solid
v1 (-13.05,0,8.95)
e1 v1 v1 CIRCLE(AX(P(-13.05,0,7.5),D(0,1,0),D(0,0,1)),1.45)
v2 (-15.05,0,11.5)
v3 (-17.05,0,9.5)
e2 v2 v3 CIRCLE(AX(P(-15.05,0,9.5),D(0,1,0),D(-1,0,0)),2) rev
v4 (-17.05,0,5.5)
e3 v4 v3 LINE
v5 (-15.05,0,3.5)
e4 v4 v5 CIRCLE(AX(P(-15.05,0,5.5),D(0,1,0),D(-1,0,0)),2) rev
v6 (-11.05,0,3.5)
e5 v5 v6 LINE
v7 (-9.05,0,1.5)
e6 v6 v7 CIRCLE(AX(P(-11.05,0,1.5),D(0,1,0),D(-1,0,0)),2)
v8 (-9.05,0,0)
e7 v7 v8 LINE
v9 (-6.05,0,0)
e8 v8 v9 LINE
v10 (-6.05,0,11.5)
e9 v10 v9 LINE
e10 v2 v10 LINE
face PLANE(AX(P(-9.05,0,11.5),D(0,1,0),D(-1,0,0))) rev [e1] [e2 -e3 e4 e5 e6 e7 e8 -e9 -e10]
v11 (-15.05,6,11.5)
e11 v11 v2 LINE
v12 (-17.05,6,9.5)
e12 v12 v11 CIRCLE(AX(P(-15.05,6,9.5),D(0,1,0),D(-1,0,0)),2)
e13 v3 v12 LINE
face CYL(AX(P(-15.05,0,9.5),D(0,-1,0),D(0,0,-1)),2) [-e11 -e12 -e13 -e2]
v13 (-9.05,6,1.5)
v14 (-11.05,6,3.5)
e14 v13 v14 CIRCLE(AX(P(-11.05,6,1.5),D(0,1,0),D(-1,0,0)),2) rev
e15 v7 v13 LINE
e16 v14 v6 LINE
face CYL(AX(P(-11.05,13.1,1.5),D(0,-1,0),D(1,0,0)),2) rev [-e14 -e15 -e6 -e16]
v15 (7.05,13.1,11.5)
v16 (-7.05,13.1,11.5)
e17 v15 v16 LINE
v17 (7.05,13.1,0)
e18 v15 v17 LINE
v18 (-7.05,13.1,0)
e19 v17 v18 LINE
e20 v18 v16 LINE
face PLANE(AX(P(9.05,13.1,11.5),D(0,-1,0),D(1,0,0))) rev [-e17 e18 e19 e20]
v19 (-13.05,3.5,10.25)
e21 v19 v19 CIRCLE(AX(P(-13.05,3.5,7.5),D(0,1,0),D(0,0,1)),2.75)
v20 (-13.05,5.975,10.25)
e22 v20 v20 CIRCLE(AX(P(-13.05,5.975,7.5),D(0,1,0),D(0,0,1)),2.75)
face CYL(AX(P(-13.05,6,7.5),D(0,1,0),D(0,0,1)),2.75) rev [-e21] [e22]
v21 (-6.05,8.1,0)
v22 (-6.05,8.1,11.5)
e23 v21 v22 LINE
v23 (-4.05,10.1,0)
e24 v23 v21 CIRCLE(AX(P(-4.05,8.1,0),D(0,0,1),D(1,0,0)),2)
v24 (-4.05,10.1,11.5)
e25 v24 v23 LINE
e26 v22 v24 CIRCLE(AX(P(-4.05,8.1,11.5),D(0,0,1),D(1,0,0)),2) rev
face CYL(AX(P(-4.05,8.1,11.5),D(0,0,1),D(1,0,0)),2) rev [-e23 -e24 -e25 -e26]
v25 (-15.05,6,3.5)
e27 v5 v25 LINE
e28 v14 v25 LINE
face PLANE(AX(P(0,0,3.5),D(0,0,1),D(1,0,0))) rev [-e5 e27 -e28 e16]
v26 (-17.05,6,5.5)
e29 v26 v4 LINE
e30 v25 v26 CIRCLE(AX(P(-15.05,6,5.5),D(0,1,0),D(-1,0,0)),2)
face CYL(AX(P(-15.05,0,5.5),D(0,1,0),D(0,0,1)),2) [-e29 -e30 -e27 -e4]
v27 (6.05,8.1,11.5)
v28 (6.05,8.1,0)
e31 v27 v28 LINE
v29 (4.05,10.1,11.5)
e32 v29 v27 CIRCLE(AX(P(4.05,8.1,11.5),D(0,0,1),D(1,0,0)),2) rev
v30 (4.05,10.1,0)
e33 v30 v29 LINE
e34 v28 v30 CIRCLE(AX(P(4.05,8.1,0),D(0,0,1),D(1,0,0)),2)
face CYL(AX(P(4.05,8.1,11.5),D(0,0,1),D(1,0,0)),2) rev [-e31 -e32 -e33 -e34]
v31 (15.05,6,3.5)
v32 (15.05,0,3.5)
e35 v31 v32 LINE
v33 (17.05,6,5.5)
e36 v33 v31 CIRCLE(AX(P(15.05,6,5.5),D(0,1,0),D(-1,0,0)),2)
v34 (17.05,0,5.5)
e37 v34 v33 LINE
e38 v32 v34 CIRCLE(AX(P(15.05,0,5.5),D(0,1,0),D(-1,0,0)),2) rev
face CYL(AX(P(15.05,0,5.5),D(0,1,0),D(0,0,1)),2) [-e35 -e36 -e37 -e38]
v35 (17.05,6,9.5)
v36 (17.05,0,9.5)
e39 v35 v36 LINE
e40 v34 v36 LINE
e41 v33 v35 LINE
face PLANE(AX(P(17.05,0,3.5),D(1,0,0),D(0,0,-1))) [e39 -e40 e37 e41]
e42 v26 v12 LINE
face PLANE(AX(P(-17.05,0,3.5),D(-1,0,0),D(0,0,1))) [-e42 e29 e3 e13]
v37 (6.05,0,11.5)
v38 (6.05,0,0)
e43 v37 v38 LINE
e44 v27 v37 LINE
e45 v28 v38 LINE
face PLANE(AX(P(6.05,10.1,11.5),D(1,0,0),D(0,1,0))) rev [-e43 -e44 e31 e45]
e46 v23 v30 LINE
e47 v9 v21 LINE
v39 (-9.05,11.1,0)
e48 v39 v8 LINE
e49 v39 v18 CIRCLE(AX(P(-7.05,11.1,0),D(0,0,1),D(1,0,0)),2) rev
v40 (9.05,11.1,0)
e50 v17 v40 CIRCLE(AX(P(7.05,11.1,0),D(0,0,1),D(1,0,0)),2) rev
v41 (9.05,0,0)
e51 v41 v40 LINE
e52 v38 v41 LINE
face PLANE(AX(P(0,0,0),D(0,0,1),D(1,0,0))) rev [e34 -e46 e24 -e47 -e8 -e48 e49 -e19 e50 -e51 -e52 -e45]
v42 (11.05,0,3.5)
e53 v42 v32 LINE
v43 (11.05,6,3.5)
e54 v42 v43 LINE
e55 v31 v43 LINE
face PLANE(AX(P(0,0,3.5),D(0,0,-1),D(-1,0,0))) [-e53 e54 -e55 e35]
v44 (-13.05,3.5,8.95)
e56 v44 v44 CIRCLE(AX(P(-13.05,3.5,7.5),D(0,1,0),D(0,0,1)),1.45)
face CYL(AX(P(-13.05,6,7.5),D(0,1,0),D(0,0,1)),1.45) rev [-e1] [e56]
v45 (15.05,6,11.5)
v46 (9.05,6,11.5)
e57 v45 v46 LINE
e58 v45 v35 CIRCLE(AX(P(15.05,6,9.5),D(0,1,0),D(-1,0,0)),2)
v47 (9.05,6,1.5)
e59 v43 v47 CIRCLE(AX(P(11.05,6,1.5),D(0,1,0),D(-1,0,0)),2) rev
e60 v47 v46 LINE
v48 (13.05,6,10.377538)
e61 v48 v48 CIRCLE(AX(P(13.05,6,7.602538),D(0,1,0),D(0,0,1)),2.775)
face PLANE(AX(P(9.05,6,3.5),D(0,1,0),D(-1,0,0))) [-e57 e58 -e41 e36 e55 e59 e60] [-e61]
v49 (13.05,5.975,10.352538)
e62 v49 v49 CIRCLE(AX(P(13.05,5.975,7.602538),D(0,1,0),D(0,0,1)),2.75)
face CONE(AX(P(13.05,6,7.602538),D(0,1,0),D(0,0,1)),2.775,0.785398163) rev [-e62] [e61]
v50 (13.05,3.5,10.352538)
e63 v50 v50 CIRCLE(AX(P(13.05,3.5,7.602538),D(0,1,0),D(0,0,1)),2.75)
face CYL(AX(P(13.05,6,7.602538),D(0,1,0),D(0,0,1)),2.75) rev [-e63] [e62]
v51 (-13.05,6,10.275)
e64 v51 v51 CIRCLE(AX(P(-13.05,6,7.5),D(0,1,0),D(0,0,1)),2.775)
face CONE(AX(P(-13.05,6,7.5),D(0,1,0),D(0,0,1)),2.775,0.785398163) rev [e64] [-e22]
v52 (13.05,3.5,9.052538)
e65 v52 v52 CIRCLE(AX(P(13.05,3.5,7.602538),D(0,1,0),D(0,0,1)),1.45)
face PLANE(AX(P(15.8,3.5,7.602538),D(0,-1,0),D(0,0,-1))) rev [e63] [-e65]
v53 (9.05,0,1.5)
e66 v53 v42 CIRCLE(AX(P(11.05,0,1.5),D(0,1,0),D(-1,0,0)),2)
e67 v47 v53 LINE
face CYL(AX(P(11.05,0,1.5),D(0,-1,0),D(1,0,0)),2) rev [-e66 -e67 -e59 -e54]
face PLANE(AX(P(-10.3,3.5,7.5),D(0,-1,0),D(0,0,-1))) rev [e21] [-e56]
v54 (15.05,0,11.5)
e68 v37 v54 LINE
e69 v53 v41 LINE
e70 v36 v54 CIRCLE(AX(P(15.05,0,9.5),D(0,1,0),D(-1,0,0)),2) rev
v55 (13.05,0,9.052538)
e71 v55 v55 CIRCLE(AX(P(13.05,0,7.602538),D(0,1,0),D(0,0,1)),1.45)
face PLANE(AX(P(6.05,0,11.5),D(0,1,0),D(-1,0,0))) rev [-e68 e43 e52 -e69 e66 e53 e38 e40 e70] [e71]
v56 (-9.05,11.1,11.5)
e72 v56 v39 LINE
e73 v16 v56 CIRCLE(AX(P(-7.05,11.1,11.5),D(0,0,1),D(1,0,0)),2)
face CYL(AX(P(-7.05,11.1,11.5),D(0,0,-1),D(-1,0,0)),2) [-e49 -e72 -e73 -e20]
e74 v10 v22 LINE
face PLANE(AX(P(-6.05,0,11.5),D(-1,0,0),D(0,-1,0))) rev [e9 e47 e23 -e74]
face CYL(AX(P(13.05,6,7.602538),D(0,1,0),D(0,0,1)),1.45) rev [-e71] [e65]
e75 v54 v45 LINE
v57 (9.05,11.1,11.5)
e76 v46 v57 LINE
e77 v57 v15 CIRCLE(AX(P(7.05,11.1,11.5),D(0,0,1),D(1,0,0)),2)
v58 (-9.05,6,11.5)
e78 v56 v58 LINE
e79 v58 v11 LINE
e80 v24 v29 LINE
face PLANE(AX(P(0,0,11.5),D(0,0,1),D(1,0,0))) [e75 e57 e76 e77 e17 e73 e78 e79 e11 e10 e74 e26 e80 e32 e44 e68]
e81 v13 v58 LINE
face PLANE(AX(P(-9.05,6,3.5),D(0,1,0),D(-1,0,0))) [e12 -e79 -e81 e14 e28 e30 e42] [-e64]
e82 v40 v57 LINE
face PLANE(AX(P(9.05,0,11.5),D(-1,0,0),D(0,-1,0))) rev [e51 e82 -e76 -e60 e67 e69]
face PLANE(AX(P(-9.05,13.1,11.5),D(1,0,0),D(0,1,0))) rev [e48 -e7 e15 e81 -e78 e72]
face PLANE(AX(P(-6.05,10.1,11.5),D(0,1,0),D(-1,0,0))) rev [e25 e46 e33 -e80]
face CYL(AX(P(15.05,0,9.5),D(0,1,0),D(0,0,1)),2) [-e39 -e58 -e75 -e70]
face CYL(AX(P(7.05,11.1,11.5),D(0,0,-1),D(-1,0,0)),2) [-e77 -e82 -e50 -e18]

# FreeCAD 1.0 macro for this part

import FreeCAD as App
import Part
import Sketcher
Q = App.Units.Quantity


def edges_at(feature, points):
    """Names of the edges that pass closest to the given points."""
    edges = feature.Shape.Edges
    near = lambda p: min(range(len(edges)), key=lambda i: edges[i].distToShape(Part.Vertex(*p))[0])
    return sorted({f"Edge{near(p) + 1}" for p in points})


def add_polygon(sketch, points):
    """Adds a closed chain of lines whose ends are joined by coincident constraints."""
    first, n = sketch.GeometryCount, len(points)
    for a, b in zip(points, points[1:] + points[:1]):
        sketch.addGeometry(Part.LineSegment(App.Vector(*a, 0), App.Vector(*b, 0)), False)
    for i in range(n):
        sketch.addConstraint(Sketcher.Constraint("Coincident", first + i, 2, first + (i + 1) % n, 1))

doc = App.newDocument("Part")
body = doc.addObject("PartDesign::Body", "Body")

# Sketch on XY plane
sketch1 = doc.addObject("Sketcher::SketchObject", "Sketch")
body.addObject(sketch1)
sketch1.AttachmentSupport = (doc.XY_Plane, [""])
sketch1.MapMode = "FlatFace"
add_polygon(sketch1, [(-9.1, 0), (-6, 0), (-6, 10.1), (6, 10.1), (6, 0), (9.1, 0), (9.1, 13.1), (-9.1, 13.1)])  # lines 0-7
sketch1.addConstraint(Sketcher.Constraint("Horizontal", 0))
sketch1.addConstraint(Sketcher.Constraint("Vertical", 1))
sketch1.addConstraint(Sketcher.Constraint("Horizontal", 2))
sketch1.addConstraint(Sketcher.Constraint("Vertical", 3))
sketch1.addConstraint(Sketcher.Constraint("Horizontal", 4))
sketch1.addConstraint(Sketcher.Constraint("Vertical", 5))
sketch1.addConstraint(Sketcher.Constraint("Horizontal", 6))
sketch1.addConstraint(Sketcher.Constraint("Vertical", 7))
sketch1.addConstraint(Sketcher.Constraint("Symmetric", 0, 2, 3, 2, -1, 1))
sketch1.addConstraint(Sketcher.Constraint("Symmetric", 4, 2, 7, 2, -2))
sketch1.addConstraint(Sketcher.Constraint("DistanceX", 0, 1, 0, 2, Q("3 mm")))
sketch1.addConstraint(Sketcher.Constraint("DistanceX", 2, 1, 2, 2, Q("12.1 mm")))
sketch1.addConstraint(Sketcher.Constraint("DistanceY", 1, 1, 1, 2, Q("10.1 mm")))
sketch1.addConstraint(Sketcher.Constraint("DistanceY", 5, 1, 5, 2, Q("13.1 mm")))
pad1 = doc.addObject("PartDesign::Pad", "Pad")
body.addObject(pad1)
pad1.Profile = sketch1
pad1.Length = 11.5

# Sketch on XY plane
sketch2 = doc.addObject("Sketcher::SketchObject", "Sketch001")
body.addObject(sketch2)
sketch2.AttachmentSupport = (doc.XY_Plane, [""])
sketch2.MapMode = "FlatFace"
sketch2.AttachmentOffset = App.Placement(App.Vector(0, 0, 11.5), App.Rotation())
add_polygon(sketch2, [(-17, 6), (-17, 0), (-9, 0), (-9, 6)])  # lines 0-3
add_polygon(sketch2, [(9, 6), (9, 0), (17, 0), (17, 6)])  # lines 4-7
sketch2.addConstraint(Sketcher.Constraint("Vertical", 0))
sketch2.addConstraint(Sketcher.Constraint("Horizontal", 1))
sketch2.addConstraint(Sketcher.Constraint("Vertical", 2))
sketch2.addConstraint(Sketcher.Constraint("Horizontal", 3))
sketch2.addConstraint(Sketcher.Constraint("Vertical", 4))
sketch2.addConstraint(Sketcher.Constraint("Horizontal", 5))
sketch2.addConstraint(Sketcher.Constraint("Vertical", 6))
sketch2.addConstraint(Sketcher.Constraint("Horizontal", 7))
sketch2.addConstraint(Sketcher.Constraint("Symmetric", 1, 2, 4, 2, -1, 1))
sketch2.addConstraint(Sketcher.Constraint("Symmetric", 0, 2, 5, 2, -2))
sketch2.addConstraint(Sketcher.Constraint("Horizontal", 3, 2, 6, 2))
sketch2.addConstraint(Sketcher.Constraint("DistanceX", 1, 1, 1, 2, Q("8 mm")))
sketch2.addConstraint(Sketcher.Constraint("DistanceY", 0, 2, 0, 1, Q("6 mm")))
sketch2.addConstraint(Sketcher.Constraint("DistanceX", 1, 2, 4, 2, Q("18.1 mm")))
pad2 = doc.addObject("PartDesign::Pad", "Pad001")
body.addObject(pad2)
pad2.Profile = sketch2
pad2.Length = 8
pad2.Reversed = True

# Sketch on YZ plane
sketch3 = doc.addObject("Sketcher::SketchObject", "Sketch002")
body.addObject(sketch3)
sketch3.AttachmentSupport = (doc.YZ_Plane, [""])
sketch3.MapMode = "FlatFace"
sketch3.AttachmentOffset = App.Placement(App.Vector(0, 0, -13.05), App.Rotation())
add_polygon(sketch3, [(0, 7.5), (6, 7.5), (6, 10.275), (5.975, 10.25), (3.5, 10.25), (3.5, 8.95), (0, 8.95)])  # lines 0-6
sketch3.addGeometry(Part.LineSegment(App.Vector(6, 7.5, 0), App.Vector(0, 7.5, 0)), True)  # axis
sketch3.addConstraint(Sketcher.Constraint("Horizontal", 0))
sketch3.addConstraint(Sketcher.Constraint("Vertical", 1))
sketch3.addConstraint(Sketcher.Constraint("Horizontal", 3))
sketch3.addConstraint(Sketcher.Constraint("Vertical", 4))
sketch3.addConstraint(Sketcher.Constraint("Horizontal", 5))
sketch3.addConstraint(Sketcher.Constraint("Vertical", 6))
sketch3.addConstraint(Sketcher.Constraint("Horizontal", 7))
sketch3.addConstraint(Sketcher.Constraint("Coincident", 7, 1, 0, 2))
sketch3.addConstraint(Sketcher.Constraint("PointOnObject", 5, 2, -2))
sketch3.addConstraint(Sketcher.Constraint("PointOnObject", 7, 2, -2))
sketch3.addConstraint(Sketcher.Constraint("DistanceX", 0, 1, 0, 2, Q("6 mm")))
sketch3.addConstraint(Sketcher.Constraint("Angle", 2, Q("-135 deg")))
sketch3.addConstraint(Sketcher.Constraint("DistanceX", 5, 2, 5, 1, Q("3.5 mm")))
sketch3.addConstraint(Sketcher.Constraint("DistanceY", 4, 2, 4, 1, Q("1.3 mm")))
sketch3.addConstraint(Sketcher.Constraint("DistanceY", 6, 2, 6, 1, Q("1.45 mm")))
sketch3.addConstraint(Sketcher.Constraint("DistanceY", -1, 1, 0, 2, Q("7.5 mm")))
sketch3.addConstraint(Sketcher.Constraint("DistanceX", 3, 2, 3, 1, Q("2.475 mm")))
groove = doc.addObject("PartDesign::Groove", "Groove")
body.addObject(groove)
groove.Profile = sketch3
groove.ReferenceAxis = (sketch3, ["Axis0"])
groove.Angle = 360
doc.recompute()

datumline = doc.addObject("PartDesign::Line", "DatumLine")
body.addObject(datumline)
datumline.Placement = App.Placement(App.Vector(0, 0, 0), App.Rotation(App.Vector(0, 0, 1), App.Vector(0.999992283, 0, 0.003928616)))
linearpattern = doc.addObject("PartDesign::LinearPattern", "LinearPattern")
body.addObject(linearpattern)
linearpattern.Originals = [groove]
linearpattern.Direction = (datumline, [""])
linearpattern.Mode = "offset"
linearpattern.Offset = 26.100201
linearpattern.Occurrences = 2
body.Tip = linearpattern
doc.recompute()

fillet = doc.addObject("PartDesign::Fillet", "Fillet")
body.addObject(fillet)
fillet.Base = (linearpattern, edges_at(linearpattern, [
    (-9.05, 13.1, 5.75),
    (9.05, 13.1, 5.75),
    (6.05, 10.1, 5.75),
    (-6.05, 10.1, 5.75),
    (-9.05, 3, 3.5),
    (-17.05, 3, 3.5),
    (-17.05, 3, 11.5),
    (9.05, 3, 3.5),
    (17.05, 3, 3.5),
    (17.05, 3, 11.5),
]))
fillet.Radius = 2

doc.recompute()
